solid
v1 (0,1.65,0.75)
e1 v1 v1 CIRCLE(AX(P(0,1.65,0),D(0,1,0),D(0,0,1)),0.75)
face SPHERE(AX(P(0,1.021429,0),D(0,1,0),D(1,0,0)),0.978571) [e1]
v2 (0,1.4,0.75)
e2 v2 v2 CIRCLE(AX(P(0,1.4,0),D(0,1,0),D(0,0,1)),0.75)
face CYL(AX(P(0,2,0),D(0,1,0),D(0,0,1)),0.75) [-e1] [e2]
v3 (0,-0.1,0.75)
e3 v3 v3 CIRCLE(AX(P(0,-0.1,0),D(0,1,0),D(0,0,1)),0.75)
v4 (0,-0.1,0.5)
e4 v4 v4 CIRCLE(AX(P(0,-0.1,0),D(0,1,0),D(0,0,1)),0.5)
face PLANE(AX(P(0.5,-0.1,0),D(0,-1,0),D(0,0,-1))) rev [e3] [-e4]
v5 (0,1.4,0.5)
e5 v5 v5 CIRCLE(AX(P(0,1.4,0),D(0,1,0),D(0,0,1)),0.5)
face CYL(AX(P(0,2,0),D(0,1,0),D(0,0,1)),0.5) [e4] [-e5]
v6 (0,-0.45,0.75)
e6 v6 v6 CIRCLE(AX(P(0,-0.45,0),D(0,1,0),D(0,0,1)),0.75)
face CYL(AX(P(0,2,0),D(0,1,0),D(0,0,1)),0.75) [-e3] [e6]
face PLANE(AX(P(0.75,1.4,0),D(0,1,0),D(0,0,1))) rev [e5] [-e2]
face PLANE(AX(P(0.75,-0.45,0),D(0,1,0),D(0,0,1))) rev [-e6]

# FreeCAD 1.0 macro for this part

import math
import FreeCAD as App
import Part
import Sketcher
Q = App.Units.Quantity

doc = App.newDocument("Part")
body = doc.addObject("PartDesign::Body", "Body")

sketch1 = body.newObject("Sketcher::SketchObject", "Sketch")
sketch1.AttachmentSupport = (doc.getObject("XY_Plane"), [""])
sketch1.MapMode = "FlatFace"
sketch1.addGeometry(Part.LineSegment(App.Vector(0.75, 1.4, 0), App.Vector(0.75, 1.65, 0)), False)
sketch1.addGeometry(Part.ArcOfCircle(Part.Circle(App.Vector(0, 1.02, 0), App.Vector(0, 0, 1), 0.98), math.radians(40), math.radians(90)), False)
sketch1.addGeometry(Part.LineSegment(App.Vector(0, 2, 0), App.Vector(0, -0.45, 0)), False)
sketch1.addGeometry(Part.LineSegment(App.Vector(0, -0.45, 0), App.Vector(0.75, -0.45, 0)), False)
sketch1.addGeometry(Part.LineSegment(App.Vector(0.75, -0.45, 0), App.Vector(0.75, -0.1, 0)), False)
sketch1.addGeometry(Part.LineSegment(App.Vector(0.75, -0.1, 0), App.Vector(0.5, -0.1, 0)), False)
sketch1.addGeometry(Part.LineSegment(App.Vector(0.5, -0.1, 0), App.Vector(0.5, 1.4, 0)), False)
sketch1.addGeometry(Part.LineSegment(App.Vector(0.5, 1.4, 0), App.Vector(0.75, 1.4, 0)), False)
sketch1.addConstraint(Sketcher.Constraint("Coincident", 0, 2, 1, 1))
sketch1.addConstraint(Sketcher.Constraint("Coincident", 1, 2, 2, 1))
sketch1.addConstraint(Sketcher.Constraint("Coincident", 2, 2, 3, 1))
sketch1.addConstraint(Sketcher.Constraint("Coincident", 3, 2, 4, 1))
sketch1.addConstraint(Sketcher.Constraint("Coincident", 4, 2, 5, 1))
sketch1.addConstraint(Sketcher.Constraint("Coincident", 5, 2, 6, 1))
sketch1.addConstraint(Sketcher.Constraint("Coincident", 6, 2, 7, 1))
sketch1.addConstraint(Sketcher.Constraint("Coincident", 7, 2, 0, 1))
sketch1.addConstraint(Sketcher.Constraint("Vertical", 0))
sketch1.addConstraint(Sketcher.Constraint("Vertical", 2))
sketch1.addConstraint(Sketcher.Constraint("Horizontal", 3))
sketch1.addConstraint(Sketcher.Constraint("Vertical", 4))
sketch1.addConstraint(Sketcher.Constraint("Horizontal", 5))
sketch1.addConstraint(Sketcher.Constraint("Vertical", 6))
sketch1.addConstraint(Sketcher.Constraint("Horizontal", 7))
sketch1.addConstraint(Sketcher.Constraint("PointOnObject", 1, 3, -2))
sketch1.addConstraint(Sketcher.Constraint("PointOnObject", 1, 2, -2))
sketch1.addConstraint(Sketcher.Constraint("Vertical", 0, 2, 3, 2))
sketch1.addConstraint(Sketcher.Constraint("Equal", 7, 0))
sketch1.addConstraint(Sketcher.Constraint("DistanceY", 6, 1, 6, 2, Q("1.5 mm")))
sketch1.addConstraint(Sketcher.Constraint("DistanceY", -1, 1, 1, 2, Q("2 mm")))
sketch1.addConstraint(Sketcher.Constraint("DistanceX", 3, 1, 3, 2, Q("0.75 mm")))
sketch1.addConstraint(Sketcher.Constraint("DistanceX", 5, 2, 5, 1, Q("0.25 mm")))
sketch1.addConstraint(Sketcher.Constraint("DistanceY", 2, 2, 2, 1, Q("2.45 mm")))
sketch1.addConstraint(Sketcher.Constraint("DistanceY", 4, 1, 4, 2, Q("0.35 mm")))
revolution = body.newObject("PartDesign::Revolution", "Revolution")
revolution.Profile = sketch1
revolution.ReferenceAxis = (sketch1, ["V_Axis"])
revolution.Angle = 360

doc.recompute()
